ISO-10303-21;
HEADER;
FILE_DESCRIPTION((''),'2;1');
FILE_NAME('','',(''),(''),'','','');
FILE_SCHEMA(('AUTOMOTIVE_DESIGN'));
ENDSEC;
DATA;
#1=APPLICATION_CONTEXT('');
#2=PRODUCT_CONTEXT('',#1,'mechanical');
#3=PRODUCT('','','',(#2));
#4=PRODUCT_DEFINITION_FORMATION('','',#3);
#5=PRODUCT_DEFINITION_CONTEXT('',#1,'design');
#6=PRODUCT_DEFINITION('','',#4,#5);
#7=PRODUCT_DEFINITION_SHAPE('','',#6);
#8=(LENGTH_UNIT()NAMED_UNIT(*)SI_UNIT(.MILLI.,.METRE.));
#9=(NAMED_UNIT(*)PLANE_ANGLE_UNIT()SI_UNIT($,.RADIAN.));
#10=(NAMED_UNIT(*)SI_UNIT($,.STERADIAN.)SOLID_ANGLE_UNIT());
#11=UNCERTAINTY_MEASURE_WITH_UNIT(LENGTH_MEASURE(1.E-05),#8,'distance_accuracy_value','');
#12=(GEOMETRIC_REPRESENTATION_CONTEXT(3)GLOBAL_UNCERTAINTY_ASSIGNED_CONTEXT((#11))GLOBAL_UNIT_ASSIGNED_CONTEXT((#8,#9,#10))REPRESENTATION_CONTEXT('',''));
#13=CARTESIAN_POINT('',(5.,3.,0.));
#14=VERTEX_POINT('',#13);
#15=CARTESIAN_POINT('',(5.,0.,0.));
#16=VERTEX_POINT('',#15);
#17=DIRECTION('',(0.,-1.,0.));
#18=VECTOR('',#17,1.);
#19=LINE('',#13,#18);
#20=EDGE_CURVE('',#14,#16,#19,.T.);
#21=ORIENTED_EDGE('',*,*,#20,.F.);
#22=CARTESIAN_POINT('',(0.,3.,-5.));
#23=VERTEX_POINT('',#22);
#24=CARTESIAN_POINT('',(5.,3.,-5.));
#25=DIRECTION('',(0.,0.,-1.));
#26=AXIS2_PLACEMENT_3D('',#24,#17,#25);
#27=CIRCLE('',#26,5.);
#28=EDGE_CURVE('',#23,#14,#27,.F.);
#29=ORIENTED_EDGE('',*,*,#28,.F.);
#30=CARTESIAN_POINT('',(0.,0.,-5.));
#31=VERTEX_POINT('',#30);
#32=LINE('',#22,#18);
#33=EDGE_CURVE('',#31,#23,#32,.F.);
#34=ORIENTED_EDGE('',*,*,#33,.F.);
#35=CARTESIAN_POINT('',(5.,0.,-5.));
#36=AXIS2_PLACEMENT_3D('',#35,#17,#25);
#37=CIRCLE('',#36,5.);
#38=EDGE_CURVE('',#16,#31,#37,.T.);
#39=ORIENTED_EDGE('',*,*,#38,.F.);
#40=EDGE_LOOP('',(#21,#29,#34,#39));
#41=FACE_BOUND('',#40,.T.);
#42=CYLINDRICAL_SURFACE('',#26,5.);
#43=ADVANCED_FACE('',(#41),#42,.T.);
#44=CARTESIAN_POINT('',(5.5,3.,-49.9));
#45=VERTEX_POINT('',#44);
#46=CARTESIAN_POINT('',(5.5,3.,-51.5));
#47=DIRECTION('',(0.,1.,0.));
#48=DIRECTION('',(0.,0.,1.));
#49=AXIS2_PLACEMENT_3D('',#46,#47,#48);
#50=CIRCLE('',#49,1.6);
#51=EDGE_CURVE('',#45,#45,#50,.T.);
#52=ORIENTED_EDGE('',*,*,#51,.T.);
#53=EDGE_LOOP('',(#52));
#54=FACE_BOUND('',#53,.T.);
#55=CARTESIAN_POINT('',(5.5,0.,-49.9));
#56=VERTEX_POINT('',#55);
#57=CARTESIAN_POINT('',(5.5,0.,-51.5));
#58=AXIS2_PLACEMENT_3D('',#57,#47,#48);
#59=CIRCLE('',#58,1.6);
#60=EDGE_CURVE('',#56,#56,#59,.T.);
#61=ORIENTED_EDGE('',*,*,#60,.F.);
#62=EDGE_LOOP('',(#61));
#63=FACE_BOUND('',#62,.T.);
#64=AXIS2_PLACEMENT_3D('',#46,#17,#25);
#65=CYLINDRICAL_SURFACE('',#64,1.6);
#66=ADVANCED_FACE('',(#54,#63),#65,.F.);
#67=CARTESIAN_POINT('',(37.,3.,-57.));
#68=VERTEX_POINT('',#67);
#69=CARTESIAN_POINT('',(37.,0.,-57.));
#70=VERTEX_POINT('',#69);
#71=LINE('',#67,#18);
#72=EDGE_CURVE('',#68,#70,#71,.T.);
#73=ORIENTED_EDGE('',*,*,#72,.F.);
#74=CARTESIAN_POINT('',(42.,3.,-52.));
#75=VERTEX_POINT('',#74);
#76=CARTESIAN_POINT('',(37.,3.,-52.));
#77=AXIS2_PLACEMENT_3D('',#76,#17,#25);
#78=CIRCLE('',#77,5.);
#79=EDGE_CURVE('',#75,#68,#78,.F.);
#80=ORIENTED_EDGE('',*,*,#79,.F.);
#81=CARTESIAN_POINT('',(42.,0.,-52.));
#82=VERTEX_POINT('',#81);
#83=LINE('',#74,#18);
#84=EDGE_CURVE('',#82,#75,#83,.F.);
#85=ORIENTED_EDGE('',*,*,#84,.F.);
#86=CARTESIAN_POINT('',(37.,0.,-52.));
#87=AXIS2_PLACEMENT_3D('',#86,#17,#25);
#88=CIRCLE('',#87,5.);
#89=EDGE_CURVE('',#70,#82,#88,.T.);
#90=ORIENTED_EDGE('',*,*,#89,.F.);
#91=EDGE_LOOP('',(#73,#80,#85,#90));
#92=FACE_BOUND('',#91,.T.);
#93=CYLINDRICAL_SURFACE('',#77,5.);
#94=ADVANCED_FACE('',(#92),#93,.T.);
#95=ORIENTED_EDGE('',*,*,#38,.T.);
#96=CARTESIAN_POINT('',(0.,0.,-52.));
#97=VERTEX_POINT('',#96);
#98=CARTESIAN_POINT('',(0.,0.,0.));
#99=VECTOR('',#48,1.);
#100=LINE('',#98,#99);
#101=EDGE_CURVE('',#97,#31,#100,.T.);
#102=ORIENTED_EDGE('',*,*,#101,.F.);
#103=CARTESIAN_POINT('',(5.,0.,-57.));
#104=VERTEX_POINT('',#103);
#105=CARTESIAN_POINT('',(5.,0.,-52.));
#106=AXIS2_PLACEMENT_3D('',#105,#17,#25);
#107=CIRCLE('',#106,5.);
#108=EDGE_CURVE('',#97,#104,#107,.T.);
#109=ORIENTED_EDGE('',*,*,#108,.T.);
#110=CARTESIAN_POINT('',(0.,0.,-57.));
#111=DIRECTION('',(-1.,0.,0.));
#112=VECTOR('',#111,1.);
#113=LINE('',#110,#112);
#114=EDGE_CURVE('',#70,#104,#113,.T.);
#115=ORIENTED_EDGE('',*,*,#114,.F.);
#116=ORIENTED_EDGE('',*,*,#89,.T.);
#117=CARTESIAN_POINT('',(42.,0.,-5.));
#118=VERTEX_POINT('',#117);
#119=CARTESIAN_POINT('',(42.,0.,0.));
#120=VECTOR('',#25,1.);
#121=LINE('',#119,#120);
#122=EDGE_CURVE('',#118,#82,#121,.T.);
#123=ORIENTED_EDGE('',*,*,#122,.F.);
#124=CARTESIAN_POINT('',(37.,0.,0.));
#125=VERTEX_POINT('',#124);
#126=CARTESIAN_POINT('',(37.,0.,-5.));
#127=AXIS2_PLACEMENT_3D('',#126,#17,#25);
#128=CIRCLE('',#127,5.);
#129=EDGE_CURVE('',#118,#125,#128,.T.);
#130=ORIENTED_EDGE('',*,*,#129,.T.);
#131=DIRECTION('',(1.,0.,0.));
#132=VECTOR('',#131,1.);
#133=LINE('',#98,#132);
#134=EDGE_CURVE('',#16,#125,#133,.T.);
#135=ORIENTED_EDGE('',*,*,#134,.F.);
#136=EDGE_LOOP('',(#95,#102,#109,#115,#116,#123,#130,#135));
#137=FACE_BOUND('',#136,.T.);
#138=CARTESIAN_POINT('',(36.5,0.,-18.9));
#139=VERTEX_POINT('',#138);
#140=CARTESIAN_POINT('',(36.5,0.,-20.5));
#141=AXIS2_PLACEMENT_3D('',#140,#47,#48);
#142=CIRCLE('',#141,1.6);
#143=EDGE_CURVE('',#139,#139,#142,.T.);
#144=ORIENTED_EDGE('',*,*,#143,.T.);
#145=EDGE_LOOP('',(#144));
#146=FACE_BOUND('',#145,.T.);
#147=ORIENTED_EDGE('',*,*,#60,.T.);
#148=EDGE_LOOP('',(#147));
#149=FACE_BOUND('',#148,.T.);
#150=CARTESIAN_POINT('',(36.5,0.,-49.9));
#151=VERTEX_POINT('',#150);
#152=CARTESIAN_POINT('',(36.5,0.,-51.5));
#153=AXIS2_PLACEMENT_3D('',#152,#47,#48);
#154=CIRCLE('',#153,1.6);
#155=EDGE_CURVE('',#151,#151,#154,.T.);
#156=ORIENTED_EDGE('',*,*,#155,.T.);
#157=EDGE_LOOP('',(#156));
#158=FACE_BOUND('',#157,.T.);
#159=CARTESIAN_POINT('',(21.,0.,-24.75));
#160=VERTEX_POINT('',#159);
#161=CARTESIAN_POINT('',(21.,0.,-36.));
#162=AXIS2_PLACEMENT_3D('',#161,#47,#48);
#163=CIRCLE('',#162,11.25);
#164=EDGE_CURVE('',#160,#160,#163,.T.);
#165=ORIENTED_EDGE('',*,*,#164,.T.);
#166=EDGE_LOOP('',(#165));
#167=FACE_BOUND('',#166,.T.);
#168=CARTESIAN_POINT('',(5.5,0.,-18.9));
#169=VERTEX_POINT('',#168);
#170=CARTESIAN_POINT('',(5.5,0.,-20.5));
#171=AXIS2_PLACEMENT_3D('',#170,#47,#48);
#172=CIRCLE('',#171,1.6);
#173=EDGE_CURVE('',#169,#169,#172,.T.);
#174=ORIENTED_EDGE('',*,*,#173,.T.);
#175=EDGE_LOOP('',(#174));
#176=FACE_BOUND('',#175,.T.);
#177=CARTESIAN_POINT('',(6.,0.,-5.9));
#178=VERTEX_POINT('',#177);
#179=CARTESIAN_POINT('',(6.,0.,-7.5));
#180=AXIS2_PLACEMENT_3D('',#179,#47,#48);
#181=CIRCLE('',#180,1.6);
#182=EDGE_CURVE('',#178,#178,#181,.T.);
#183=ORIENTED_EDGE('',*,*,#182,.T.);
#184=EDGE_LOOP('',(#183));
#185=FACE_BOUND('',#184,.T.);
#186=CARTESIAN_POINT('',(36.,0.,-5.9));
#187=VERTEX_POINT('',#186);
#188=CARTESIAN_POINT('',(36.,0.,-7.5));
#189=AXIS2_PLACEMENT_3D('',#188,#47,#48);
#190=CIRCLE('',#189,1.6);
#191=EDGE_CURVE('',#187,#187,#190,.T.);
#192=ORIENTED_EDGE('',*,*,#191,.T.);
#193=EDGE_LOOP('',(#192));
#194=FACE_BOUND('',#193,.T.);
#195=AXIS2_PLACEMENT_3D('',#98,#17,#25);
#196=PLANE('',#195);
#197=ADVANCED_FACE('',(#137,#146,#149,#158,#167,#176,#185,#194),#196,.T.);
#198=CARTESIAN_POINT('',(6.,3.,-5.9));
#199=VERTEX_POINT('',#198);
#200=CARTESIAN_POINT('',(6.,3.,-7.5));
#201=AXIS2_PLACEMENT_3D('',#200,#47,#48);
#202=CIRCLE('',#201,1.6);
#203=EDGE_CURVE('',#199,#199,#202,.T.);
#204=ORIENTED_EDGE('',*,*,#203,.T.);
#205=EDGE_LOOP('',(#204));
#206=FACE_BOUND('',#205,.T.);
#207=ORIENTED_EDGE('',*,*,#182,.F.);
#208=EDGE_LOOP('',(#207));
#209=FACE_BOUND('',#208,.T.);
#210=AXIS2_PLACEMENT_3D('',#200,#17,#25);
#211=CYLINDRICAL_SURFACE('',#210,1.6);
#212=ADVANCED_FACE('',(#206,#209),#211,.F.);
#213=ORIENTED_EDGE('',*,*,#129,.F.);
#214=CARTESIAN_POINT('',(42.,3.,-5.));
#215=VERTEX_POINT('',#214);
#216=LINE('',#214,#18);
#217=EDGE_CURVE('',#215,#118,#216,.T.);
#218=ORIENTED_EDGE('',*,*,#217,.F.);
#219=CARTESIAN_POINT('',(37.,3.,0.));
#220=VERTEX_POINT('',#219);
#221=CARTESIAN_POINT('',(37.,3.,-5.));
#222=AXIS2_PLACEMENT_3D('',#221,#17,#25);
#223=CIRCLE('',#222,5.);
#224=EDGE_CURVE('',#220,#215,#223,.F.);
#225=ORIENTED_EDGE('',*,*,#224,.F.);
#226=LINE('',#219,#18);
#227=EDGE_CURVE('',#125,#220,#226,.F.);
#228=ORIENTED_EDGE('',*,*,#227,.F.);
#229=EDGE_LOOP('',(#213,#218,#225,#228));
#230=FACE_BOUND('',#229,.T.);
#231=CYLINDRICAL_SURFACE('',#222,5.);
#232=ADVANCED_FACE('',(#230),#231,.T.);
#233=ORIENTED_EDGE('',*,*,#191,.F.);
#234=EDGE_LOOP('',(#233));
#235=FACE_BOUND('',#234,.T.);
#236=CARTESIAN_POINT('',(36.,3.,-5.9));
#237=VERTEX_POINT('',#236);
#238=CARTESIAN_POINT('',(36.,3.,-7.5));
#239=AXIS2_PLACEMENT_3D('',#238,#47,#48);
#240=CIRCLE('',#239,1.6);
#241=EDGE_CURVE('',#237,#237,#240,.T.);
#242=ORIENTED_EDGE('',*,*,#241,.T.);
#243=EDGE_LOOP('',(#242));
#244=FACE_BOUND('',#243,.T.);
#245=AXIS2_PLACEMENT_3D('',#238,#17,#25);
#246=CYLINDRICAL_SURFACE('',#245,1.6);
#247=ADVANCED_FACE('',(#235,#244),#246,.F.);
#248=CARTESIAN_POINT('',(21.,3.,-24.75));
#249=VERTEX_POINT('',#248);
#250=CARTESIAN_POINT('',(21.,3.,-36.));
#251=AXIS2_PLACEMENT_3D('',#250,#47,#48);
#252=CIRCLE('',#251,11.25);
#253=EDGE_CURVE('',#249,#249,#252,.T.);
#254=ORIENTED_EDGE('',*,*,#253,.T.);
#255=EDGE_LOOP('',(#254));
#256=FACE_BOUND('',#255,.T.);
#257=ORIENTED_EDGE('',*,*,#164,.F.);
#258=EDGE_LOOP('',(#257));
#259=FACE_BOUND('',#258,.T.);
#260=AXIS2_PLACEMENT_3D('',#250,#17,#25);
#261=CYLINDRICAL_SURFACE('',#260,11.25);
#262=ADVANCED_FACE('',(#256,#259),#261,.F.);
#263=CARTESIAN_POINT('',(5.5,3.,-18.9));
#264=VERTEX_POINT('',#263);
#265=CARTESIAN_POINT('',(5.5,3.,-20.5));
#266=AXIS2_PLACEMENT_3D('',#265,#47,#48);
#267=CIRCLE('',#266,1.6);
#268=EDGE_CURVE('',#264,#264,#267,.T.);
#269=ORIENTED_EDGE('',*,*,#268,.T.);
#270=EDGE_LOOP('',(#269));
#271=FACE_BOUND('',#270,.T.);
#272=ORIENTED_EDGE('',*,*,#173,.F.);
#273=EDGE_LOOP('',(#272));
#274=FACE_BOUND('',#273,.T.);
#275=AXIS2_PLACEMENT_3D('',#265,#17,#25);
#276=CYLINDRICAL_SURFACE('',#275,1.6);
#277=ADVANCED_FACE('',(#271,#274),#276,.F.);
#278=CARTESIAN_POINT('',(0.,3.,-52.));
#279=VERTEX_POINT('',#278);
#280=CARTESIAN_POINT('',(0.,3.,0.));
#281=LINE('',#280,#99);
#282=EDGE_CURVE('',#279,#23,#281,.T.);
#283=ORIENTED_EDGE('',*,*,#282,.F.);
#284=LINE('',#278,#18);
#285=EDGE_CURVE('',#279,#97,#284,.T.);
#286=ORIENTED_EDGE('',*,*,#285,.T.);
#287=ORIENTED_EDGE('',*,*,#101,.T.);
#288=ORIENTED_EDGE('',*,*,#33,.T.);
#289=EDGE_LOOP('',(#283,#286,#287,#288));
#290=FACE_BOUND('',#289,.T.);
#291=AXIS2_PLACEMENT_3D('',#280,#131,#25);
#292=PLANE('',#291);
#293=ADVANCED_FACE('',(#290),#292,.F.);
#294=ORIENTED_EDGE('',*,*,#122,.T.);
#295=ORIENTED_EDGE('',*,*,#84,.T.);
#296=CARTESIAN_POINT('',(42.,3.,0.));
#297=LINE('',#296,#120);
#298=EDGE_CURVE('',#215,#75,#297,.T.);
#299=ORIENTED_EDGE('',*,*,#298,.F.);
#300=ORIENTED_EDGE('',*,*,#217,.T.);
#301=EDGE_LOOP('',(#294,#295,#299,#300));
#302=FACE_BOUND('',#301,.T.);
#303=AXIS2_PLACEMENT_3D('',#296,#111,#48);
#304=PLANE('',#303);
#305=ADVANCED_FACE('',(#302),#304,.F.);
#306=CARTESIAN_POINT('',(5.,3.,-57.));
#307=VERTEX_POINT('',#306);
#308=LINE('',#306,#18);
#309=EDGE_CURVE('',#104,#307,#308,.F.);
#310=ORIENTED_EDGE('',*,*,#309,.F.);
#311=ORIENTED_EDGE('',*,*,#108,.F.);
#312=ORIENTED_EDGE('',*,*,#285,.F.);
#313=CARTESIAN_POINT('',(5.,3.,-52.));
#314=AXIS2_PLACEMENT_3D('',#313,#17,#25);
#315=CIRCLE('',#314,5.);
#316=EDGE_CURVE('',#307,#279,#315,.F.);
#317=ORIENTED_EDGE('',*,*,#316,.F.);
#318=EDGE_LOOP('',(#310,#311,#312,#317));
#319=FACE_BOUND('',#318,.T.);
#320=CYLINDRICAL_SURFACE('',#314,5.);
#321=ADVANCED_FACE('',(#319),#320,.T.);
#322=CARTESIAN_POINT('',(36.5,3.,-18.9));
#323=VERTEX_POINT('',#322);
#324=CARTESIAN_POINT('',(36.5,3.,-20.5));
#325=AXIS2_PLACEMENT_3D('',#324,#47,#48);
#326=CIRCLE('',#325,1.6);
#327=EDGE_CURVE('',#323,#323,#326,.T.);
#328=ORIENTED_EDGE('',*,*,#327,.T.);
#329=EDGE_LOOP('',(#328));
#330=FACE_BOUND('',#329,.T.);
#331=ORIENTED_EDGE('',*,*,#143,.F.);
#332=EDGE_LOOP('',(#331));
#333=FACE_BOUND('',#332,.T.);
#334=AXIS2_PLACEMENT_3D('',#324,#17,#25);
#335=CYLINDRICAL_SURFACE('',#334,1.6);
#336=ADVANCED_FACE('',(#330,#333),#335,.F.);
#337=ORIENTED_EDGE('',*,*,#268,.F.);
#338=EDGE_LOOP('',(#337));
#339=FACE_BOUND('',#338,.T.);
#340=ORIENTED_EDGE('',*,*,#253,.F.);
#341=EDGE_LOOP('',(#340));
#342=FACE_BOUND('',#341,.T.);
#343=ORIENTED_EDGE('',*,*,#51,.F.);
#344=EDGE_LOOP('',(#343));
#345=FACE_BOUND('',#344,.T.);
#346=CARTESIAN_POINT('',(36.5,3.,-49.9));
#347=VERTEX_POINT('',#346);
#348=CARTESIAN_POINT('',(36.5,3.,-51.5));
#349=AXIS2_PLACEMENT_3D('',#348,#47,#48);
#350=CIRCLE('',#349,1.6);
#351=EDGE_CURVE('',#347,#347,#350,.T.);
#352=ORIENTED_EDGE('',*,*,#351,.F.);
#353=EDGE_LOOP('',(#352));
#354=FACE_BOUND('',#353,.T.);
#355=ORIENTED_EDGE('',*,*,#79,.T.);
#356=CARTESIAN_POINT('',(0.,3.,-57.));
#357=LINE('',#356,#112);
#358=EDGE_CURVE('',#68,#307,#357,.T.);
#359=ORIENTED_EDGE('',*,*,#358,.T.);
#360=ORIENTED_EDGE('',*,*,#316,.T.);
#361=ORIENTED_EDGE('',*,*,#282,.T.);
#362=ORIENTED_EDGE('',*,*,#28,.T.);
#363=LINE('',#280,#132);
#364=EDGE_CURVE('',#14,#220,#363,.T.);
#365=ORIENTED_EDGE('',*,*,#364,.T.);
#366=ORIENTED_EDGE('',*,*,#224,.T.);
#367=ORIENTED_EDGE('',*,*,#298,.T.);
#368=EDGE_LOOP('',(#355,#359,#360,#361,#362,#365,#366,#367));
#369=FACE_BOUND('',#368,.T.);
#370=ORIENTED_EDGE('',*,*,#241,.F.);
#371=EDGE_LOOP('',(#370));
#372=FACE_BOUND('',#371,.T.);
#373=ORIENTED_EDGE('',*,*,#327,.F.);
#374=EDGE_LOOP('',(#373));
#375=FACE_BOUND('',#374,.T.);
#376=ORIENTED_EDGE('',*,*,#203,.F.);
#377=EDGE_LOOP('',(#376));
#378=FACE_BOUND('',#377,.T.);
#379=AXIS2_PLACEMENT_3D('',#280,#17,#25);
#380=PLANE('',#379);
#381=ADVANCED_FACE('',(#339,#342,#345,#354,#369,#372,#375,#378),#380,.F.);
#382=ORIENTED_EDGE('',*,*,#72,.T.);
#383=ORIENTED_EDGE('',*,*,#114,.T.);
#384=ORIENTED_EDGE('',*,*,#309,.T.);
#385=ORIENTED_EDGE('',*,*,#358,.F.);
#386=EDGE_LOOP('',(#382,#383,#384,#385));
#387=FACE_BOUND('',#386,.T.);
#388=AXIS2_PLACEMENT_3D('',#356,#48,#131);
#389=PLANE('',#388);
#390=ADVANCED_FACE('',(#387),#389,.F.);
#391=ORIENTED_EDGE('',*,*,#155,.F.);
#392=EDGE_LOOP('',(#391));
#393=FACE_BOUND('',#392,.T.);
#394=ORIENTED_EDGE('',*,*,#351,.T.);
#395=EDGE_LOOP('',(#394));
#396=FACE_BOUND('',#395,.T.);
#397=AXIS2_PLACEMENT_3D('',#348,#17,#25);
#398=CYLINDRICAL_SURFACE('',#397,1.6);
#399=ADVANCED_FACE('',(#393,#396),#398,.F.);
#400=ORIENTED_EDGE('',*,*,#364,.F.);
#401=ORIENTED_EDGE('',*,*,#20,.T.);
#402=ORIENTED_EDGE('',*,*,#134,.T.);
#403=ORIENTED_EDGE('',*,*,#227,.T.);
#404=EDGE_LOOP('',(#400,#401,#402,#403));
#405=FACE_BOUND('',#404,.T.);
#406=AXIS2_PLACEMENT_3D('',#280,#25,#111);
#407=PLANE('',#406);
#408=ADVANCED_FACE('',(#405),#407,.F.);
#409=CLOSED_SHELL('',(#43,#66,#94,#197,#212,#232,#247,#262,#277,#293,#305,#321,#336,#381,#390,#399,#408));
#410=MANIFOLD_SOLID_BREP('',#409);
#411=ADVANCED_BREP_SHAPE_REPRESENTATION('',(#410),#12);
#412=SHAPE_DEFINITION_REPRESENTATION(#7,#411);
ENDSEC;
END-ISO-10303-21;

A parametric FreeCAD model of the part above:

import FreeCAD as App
import Part
import Sketcher
Q = App.Units.Quantity


def edges_at(feature, points):
    """Names of the edges that pass closest to the given points."""
    edges = feature.Shape.Edges
    near = lambda p: min(range(len(edges)), key=lambda i: edges[i].distToShape(Part.Vertex(*p))[0])
    return sorted({f"Edge{near(p) + 1}" for p in points})


def add_polygon(sketch, points):
    """Adds a closed chain of lines whose ends are joined by coincident constraints."""
    first, n = sketch.GeometryCount, len(points)
    for a, b in zip(points, points[1:] + points[:1]):
        sketch.addGeometry(Part.LineSegment(App.Vector(*a, 0), App.Vector(*b, 0)), False)
    for i in range(n):
        sketch.addConstraint(Sketcher.Constraint("Coincident", first + i, 2, first + (i + 1) % n, 1))

doc = App.newDocument("Part")
body = doc.addObject("PartDesign::Body", "Body")

sketch1 = body.newObject("Sketcher::SketchObject", "Sketch")
sketch1.AttachmentSupport = (doc.getObject("XZ_Plane"), [""])
sketch1.MapMode = "FlatFace"
add_polygon(sketch1, [(0, -57), (0, 0), (42, 0), (42, -57)])
sketch1.addGeometry(Part.Circle(App.Vector(6, -7.5, 0), App.Vector(0, 0, 1), 1.6), False)
sketch1.addGeometry(Part.Circle(App.Vector(5.5, -20.5, 0), App.Vector(0, 0, 1), 1.6), False)
sketch1.addGeometry(Part.Circle(App.Vector(36, -7.5, 0), App.Vector(0, 0, 1), 1.6), False)
sketch1.addGeometry(Part.Circle(App.Vector(36.5, -20.5, 0), App.Vector(0, 0, 1), 1.6), False)
sketch1.addGeometry(Part.Circle(App.Vector(5.5, -51.5, 0), App.Vector(0, 0, 1), 1.6), False)
sketch1.addGeometry(Part.Circle(App.Vector(21, -36, 0), App.Vector(0, 0, 1), 11.25), False)
sketch1.addGeometry(Part.Circle(App.Vector(36.5, -51.5, 0), App.Vector(0, 0, 1), 1.6), False)
sketch1.addConstraint(Sketcher.Constraint("Vertical", 0))
sketch1.addConstraint(Sketcher.Constraint("Horizontal", 1))
sketch1.addConstraint(Sketcher.Constraint("Vertical", 2))
sketch1.addConstraint(Sketcher.Constraint("Horizontal", 3))
sketch1.addConstraint(Sketcher.Constraint("Coincident", 0, 2, -1, 1))
sketch1.addConstraint(Sketcher.Constraint("Equal", 4, 5))
sketch1.addConstraint(Sketcher.Constraint("Equal", 5, 6))
sketch1.addConstraint(Sketcher.Constraint("Equal", 6, 7))
sketch1.addConstraint(Sketcher.Constraint("Equal", 7, 8))
sketch1.addConstraint(Sketcher.Constraint("Equal", 8, 10))
sketch1.addConstraint(Sketcher.Constraint("Horizontal", 4, 3, 6, 3))
sketch1.addConstraint(Sketcher.Constraint("Horizontal", 5, 3, 7, 3))
sketch1.addConstraint(Sketcher.Constraint("Horizontal", 8, 3, 10, 3))
sketch1.addConstraint(Sketcher.Constraint("Vertical", 5, 3, 8, 3))
sketch1.addConstraint(Sketcher.Constraint("Vertical", 7, 3, 10, 3))
sketch1.addConstraint(Sketcher.Constraint("Diameter", 4, Q("3.2 mm")))
sketch1.addConstraint(Sketcher.Constraint("Diameter", 9, Q("22.5 mm")))
sketch1.addConstraint(Sketcher.Constraint("DistanceX", 1, 1, 1, 2, Q("42 mm")))
sketch1.addConstraint(Sketcher.Constraint("DistanceY", 0, 1, 0, 2, Q("57 mm")))
sketch1.addConstraint(Sketcher.Constraint("DistanceX", -1, 1, 4, 3, Q("6 mm")))
sketch1.addConstraint(Sketcher.Constraint("DistanceX", -1, 1, 6, 3, Q("36 mm")))
sketch1.addConstraint(Sketcher.Constraint("DistanceX", -1, 1, 9, 3, Q("21 mm")))
sketch1.addConstraint(Sketcher.Constraint("DistanceY", 9, 3, -1, 1, Q("36 mm")))
sketch1.addConstraint(Sketcher.Constraint("DistanceY", 5, 3, 4, 3, Q("13 mm")))
sketch1.addConstraint(Sketcher.Constraint("DistanceX", 5, 3, 7, 3, Q("31 mm")))
sketch1.addConstraint(Sketcher.Constraint("DistanceY", 8, 3, 5, 3, Q("31 mm")))
sketch1.addConstraint(Sketcher.Constraint("DistanceY", 4, 3, -1, 1, Q("7.5 mm")))
sketch1.addConstraint(Sketcher.Constraint("DistanceX", -1, 1, 5, 3, Q("5.5 mm")))
pad1 = body.newObject("PartDesign::Pad", "Pad")
pad1.Profile = sketch1
pad1.Length = 3
pad1.Reversed = True
doc.recompute()

fillet = body.newObject("PartDesign::Fillet", "Fillet")
fillet.Base = (pad1, edges_at(pad1, [
    (0, 1.5, -57),
    (42, 1.5, -57),
    (42, 1.5, 0),
    (0, 1.5, 0),
]))
fillet.Radius = 5

doc.recompute()
